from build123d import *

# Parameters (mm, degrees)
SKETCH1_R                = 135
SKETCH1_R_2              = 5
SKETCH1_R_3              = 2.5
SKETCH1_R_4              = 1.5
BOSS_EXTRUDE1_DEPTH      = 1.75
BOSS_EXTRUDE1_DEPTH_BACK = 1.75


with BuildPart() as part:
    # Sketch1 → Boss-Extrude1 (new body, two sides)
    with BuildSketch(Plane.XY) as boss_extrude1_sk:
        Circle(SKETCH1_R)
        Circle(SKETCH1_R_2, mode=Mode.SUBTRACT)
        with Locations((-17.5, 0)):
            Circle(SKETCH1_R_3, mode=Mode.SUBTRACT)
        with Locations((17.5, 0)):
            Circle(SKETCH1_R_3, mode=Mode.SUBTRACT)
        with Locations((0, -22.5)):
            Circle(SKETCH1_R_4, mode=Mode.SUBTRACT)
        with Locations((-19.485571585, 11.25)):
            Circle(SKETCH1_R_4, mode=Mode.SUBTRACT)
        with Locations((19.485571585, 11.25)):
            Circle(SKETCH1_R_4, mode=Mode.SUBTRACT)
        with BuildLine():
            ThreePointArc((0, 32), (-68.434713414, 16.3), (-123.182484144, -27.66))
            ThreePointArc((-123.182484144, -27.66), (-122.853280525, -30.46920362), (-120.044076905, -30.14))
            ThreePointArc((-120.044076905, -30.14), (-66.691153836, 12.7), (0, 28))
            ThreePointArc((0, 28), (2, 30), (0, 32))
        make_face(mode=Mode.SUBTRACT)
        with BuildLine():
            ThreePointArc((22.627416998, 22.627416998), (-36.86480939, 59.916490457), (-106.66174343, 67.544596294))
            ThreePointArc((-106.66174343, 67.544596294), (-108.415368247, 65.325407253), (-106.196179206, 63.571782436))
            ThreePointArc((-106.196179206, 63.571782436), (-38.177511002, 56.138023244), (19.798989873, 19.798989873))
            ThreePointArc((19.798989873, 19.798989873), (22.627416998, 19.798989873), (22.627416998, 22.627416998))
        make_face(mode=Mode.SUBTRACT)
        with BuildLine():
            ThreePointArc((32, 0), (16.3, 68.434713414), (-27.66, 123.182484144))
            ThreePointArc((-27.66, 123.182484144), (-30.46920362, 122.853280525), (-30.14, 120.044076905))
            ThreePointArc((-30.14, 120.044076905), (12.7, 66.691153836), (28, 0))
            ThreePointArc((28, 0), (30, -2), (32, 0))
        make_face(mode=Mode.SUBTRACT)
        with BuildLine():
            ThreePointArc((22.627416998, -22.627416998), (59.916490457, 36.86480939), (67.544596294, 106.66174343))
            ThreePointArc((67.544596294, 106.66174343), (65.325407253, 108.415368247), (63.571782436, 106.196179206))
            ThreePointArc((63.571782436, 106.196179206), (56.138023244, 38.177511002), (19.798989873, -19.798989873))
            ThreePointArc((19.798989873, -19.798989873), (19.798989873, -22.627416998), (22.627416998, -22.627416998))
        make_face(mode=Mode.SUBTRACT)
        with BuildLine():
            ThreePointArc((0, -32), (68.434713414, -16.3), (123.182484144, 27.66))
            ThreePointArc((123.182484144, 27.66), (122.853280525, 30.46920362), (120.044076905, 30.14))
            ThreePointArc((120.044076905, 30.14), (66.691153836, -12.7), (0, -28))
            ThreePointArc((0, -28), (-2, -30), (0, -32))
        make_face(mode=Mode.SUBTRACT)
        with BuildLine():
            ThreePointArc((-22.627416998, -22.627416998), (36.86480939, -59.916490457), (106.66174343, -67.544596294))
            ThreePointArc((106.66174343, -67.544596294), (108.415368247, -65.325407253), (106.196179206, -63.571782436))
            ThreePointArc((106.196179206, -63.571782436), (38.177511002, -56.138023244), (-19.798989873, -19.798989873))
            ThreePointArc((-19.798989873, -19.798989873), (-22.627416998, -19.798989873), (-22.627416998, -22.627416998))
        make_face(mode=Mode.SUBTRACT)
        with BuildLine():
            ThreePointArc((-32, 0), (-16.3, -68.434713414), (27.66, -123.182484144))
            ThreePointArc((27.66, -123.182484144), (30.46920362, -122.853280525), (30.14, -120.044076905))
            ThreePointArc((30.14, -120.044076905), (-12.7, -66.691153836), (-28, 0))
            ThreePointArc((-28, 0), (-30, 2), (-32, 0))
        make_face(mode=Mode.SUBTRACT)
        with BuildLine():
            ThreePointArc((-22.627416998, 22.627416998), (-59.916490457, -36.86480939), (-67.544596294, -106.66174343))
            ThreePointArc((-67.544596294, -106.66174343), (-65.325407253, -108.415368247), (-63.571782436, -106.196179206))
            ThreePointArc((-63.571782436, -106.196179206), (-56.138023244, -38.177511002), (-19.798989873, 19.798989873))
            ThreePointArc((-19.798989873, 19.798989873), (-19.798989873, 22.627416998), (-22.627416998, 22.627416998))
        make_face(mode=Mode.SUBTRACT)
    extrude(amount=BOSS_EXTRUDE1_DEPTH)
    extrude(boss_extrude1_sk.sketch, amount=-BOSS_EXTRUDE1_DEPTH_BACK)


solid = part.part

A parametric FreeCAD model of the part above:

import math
import FreeCAD as App
import Part
import Sketcher
Q = App.Units.Quantity

doc = App.newDocument("Part")
body = doc.addObject("PartDesign::Body", "Body")

# Sketch on XY plane
sketch1 = doc.addObject("Sketcher::SketchObject", "Sketch")
body.addObject(sketch1)
sketch1.AttachmentSupport = (doc.XY_Plane, [""])
sketch1.MapMode = "FlatFace"
sketch1.addGeometry([
    Part.Circle(App.Vector(0, 0, 0), App.Vector(0, 0, 1), 135),  # 0
    Part.ArcOfCircle(Part.Circle(App.Vector(88.4, -88.4, 0), App.Vector(0, 0, 1), 157), math.radians(135), math.radians(187)),  # 1
    Part.ArcOfCircle(Part.Circle(App.Vector(-21.2, 21.2, 0), App.Vector(0, 0, 1), 2), math.radians(-45), math.radians(135)),  # 2
    Part.ArcOfCircle(Part.Circle(App.Vector(88.4, -88.4, 0), App.Vector(0, 0, 1), 153), math.radians(135), math.radians(187)),  # 3
    Part.ArcOfCircle(Part.Circle(App.Vector(-65.6, -106.4, 0), App.Vector(0, 0, 1), 2), math.radians(-173), math.radians(7)),  # 4
    Part.ArcOfCircle(Part.Circle(App.Vector(125, 0, 0), App.Vector(0, 0, 1), 157), math.radians(180), math.radians(232)),  # 5
    Part.ArcOfCircle(Part.Circle(App.Vector(-30, 0, 0), App.Vector(0, 0, 1), 2), math.radians(0), math.radians(180)),  # 6
    Part.ArcOfCircle(Part.Circle(App.Vector(125, 0, 0), App.Vector(0, 0, 1), 153), math.radians(180), math.radians(232)),  # 7
    Part.ArcOfCircle(Part.Circle(App.Vector(28.9, -121.6, 0), App.Vector(0, 0, 1), 2), math.radians(-128), math.radians(52)),  # 8
    Part.ArcOfCircle(Part.Circle(App.Vector(88.4, 88.4, 0), App.Vector(0, 0, 1), 157), math.radians(-135), math.radians(-83)),  # 9
    Part.ArcOfCircle(Part.Circle(App.Vector(-21.2, -21.2, 0), App.Vector(0, 0, 1), 2), math.radians(45), math.radians(225)),  # 10
    Part.ArcOfCircle(Part.Circle(App.Vector(88.4, 88.4, 0), App.Vector(0, 0, 1), 153), math.radians(-135), math.radians(-83)),  # 11
    Part.ArcOfCircle(Part.Circle(App.Vector(106.4, -65.6, 0), App.Vector(0, 0, 1), 2), math.radians(-83), math.radians(97)),  # 12
    Part.Circle(App.Vector(0, -22.5, 0), App.Vector(0, 0, 1), 1.5),  # 13
    Part.ArcOfCircle(Part.Circle(App.Vector(0, 125, 0), App.Vector(0, 0, 1), 157), math.radians(-90), math.radians(-38)),  # 14
    Part.ArcOfCircle(Part.Circle(App.Vector(0, -30, 0), App.Vector(0, 0, 1), 2), math.radians(90), math.radians(270)),  # 15
    Part.ArcOfCircle(Part.Circle(App.Vector(0, 125, 0), App.Vector(0, 0, 1), 153), math.radians(-90), math.radians(-38)),  # 16
    Part.ArcOfCircle(Part.Circle(App.Vector(121.6, 28.9, 0), App.Vector(0, 0, 1), 2), math.radians(-38), math.radians(142)),  # 17
    Part.ArcOfCircle(Part.Circle(App.Vector(0, -125, 0), App.Vector(0, 0, 1), 157), math.radians(90), math.radians(142)),  # 18
    Part.ArcOfCircle(Part.Circle(App.Vector(0, 30, 0), App.Vector(0, 0, 1), 2), math.radians(-90), math.radians(90)),  # 19
    Part.ArcOfCircle(Part.Circle(App.Vector(0, -125, 0), App.Vector(0, 0, 1), 153), math.radians(90), math.radians(142)),  # 20
    Part.ArcOfCircle(Part.Circle(App.Vector(-121.6, -28.9, 0), App.Vector(0, 0, 1), 2), math.radians(142), math.radians(322)),  # 21
    Part.Circle(App.Vector(-17.5, 0, 0), App.Vector(0, 0, 1), 2.5),  # 22
    Part.Circle(App.Vector(-19.5, 11.2, 0), App.Vector(0, 0, 1), 1.5),  # 23
    Part.ArcOfCircle(Part.Circle(App.Vector(-88.4, -88.4, 0), App.Vector(0, 0, 1), 157), math.radians(45), math.radians(97)),  # 24
    Part.ArcOfCircle(Part.Circle(App.Vector(21.2, 21.2, 0), App.Vector(0, 0, 1), 2), math.radians(-135), math.radians(45)),  # 25
    Part.ArcOfCircle(Part.Circle(App.Vector(-88.4, -88.4, 0), App.Vector(0, 0, 1), 153), math.radians(45), math.radians(97)),  # 26
    Part.ArcOfCircle(Part.Circle(App.Vector(-106.4, 65.6, 0), App.Vector(0, 0, 1), 2), math.radians(97), math.radians(277)),  # 27
    Part.Circle(App.Vector(0, 0, 0), App.Vector(0, 0, 1), 5),  # 28
    Part.Circle(App.Vector(17.5, 0, 0), App.Vector(0, 0, 1), 2.5),  # 29
    Part.Circle(App.Vector(19.5, 11.2, 0), App.Vector(0, 0, 1), 1.5),  # 30
    Part.ArcOfCircle(Part.Circle(App.Vector(-125, 0, 0), App.Vector(0, 0, 1), 157), math.radians(0), math.radians(52)),  # 31
    Part.ArcOfCircle(Part.Circle(App.Vector(30, 0, 0), App.Vector(0, 0, 1), 2), math.radians(180), math.radians(360)),  # 32
    Part.ArcOfCircle(Part.Circle(App.Vector(-125, 0, 0), App.Vector(0, 0, 1), 153), math.radians(0), math.radians(52)),  # 33
    Part.ArcOfCircle(Part.Circle(App.Vector(-28.9, 121.6, 0), App.Vector(0, 0, 1), 2), math.radians(52), math.radians(232)),  # 34
    Part.ArcOfCircle(Part.Circle(App.Vector(-88.4, 88.4, 0), App.Vector(0, 0, 1), 157), math.radians(-45), math.radians(7)),  # 35
    Part.ArcOfCircle(Part.Circle(App.Vector(21.2, -21.2, 0), App.Vector(0, 0, 1), 2), math.radians(135), math.radians(315)),  # 36
    Part.ArcOfCircle(Part.Circle(App.Vector(-88.4, 88.4, 0), App.Vector(0, 0, 1), 153), math.radians(-45), math.radians(7)),  # 37
    Part.ArcOfCircle(Part.Circle(App.Vector(65.6, 106.4, 0), App.Vector(0, 0, 1), 2), math.radians(7), math.radians(187)),  # 38
], False)
sketch1.addConstraint([
    Sketcher.Constraint("Tangent", 1, 1, 2, 2),
    Sketcher.Constraint("Tangent", 2, 1, 3, 1),
    Sketcher.Constraint("Tangent", 3, 2, 4, 2),
    Sketcher.Constraint("Tangent", 4, 1, 1, 2),
    Sketcher.Constraint("Tangent", 5, 1, 6, 2),
    Sketcher.Constraint("Tangent", 6, 1, 7, 1),
    Sketcher.Constraint("Tangent", 7, 2, 8, 2),
    Sketcher.Constraint("Tangent", 8, 1, 5, 2),
    Sketcher.Constraint("Tangent", 9, 1, 10, 2),
    Sketcher.Constraint("Tangent", 10, 1, 11, 1),
    Sketcher.Constraint("Tangent", 11, 2, 12, 2),
    Sketcher.Constraint("Tangent", 12, 1, 9, 2),
    Sketcher.Constraint("Tangent", 14, 1, 15, 2),
    Sketcher.Constraint("Tangent", 15, 1, 16, 1),
    Sketcher.Constraint("Tangent", 16, 2, 17, 2),
    Sketcher.Constraint("Tangent", 17, 1, 14, 2),
    Sketcher.Constraint("Tangent", 18, 1, 19, 2),
    Sketcher.Constraint("Tangent", 19, 1, 20, 1),
    Sketcher.Constraint("Tangent", 20, 2, 21, 2),
    Sketcher.Constraint("Tangent", 21, 1, 18, 2),
    Sketcher.Constraint("Tangent", 24, 1, 25, 2),
    Sketcher.Constraint("Tangent", 25, 1, 26, 1),
    Sketcher.Constraint("Tangent", 26, 2, 27, 2),
    Sketcher.Constraint("Tangent", 27, 1, 24, 2),
    Sketcher.Constraint("Tangent", 31, 1, 32, 2),
    Sketcher.Constraint("Tangent", 32, 1, 33, 1),
    Sketcher.Constraint("Tangent", 33, 2, 34, 2),
    Sketcher.Constraint("Tangent", 34, 1, 31, 2),
    Sketcher.Constraint("Tangent", 35, 1, 36, 2),
    Sketcher.Constraint("Tangent", 36, 1, 37, 1),
    Sketcher.Constraint("Tangent", 37, 2, 38, 2),
    Sketcher.Constraint("Tangent", 38, 1, 35, 2),
    Sketcher.Constraint("Coincident", 0, 3, -1, 1),
    Sketcher.Constraint("Coincident", 28, 3, -1, 1),
    Sketcher.Constraint("Coincident", 3, 3, 1, 3),
    Sketcher.Constraint("Coincident", 7, 3, 5, 3),
    Sketcher.Constraint("Coincident", 11, 3, 9, 3),
    Sketcher.Constraint("Coincident", 16, 3, 14, 3),
    Sketcher.Constraint("Coincident", 20, 3, 18, 3),
    Sketcher.Constraint("Coincident", 26, 3, 24, 3),
    Sketcher.Constraint("Coincident", 33, 3, 31, 3),
    Sketcher.Constraint("Coincident", 37, 3, 35, 3),
    Sketcher.Constraint("Equal", 1, 5),
    Sketcher.Constraint("Equal", 4, 6),
    Sketcher.Constraint("Equal", 5, 9),
    Sketcher.Constraint("Equal", 8, 10),
    Sketcher.Constraint("Equal", 9, 14),
    Sketcher.Constraint("Equal", 12, 15),
    Sketcher.Constraint("Equal", 14, 18),
    Sketcher.Constraint("Equal", 17, 19),
    Sketcher.Constraint("Equal", 13, 23),
    Sketcher.Constraint("Equal", 18, 24),
    Sketcher.Constraint("Equal", 21, 25),
    Sketcher.Constraint("Equal", 22, 29),
    Sketcher.Constraint("Equal", 23, 30),
    Sketcher.Constraint("Equal", 24, 31),
    Sketcher.Constraint("Equal", 27, 32),
    Sketcher.Constraint("Equal", 31, 35),
    Sketcher.Constraint("Equal", 34, 36),
    Sketcher.Constraint("Symmetric", 14, 3, 18, 3, -1, 1),
    Sketcher.Constraint("Symmetric", 9, 3, 24, 3, -1, 1),
    Sketcher.Constraint("Symmetric", 22, 3, 29, 3, -1, 1),
    Sketcher.Constraint("Symmetric", 5, 3, 31, 3, -1, 1),
    Sketcher.Constraint("Symmetric", 1, 3, 35, 3, -1, 1),
    Sketcher.Constraint("Symmetric", 1, 3, 24, 3, -2),
    Sketcher.Constraint("Symmetric", 23, 3, 30, 3, -2),
    Sketcher.Constraint("PointOnObject", 5, 3, -1),
    Sketcher.Constraint("PointOnObject", 6, 3, -1),
    Sketcher.Constraint("PointOnObject", 13, 3, -2),
    Sketcher.Constraint("PointOnObject", 14, 3, -2),
    Sketcher.Constraint("PointOnObject", 15, 3, -2),
    Sketcher.Constraint("PointOnObject", 19, 3, -2),
    Sketcher.Constraint("PointOnObject", 22, 3, -1),
    Sketcher.Constraint("PointOnObject", 32, 3, -1),
    Sketcher.Constraint("Horizontal", 2, 3, 25, 3),
    Sketcher.Constraint("Horizontal", 10, 3, 36, 3),
    Sketcher.Constraint("Vertical", 2, 3, 10, 3),
    Sketcher.Constraint("Diameter", 0, Q("270 mm")),
    Sketcher.Constraint("Diameter", 13, Q("3 mm")),
    Sketcher.Constraint("Diameter", 22, Q("5 mm")),
    Sketcher.Constraint("Diameter", 28, Q("10 mm")),
    Sketcher.Constraint("Radius", 1, Q("157 mm")),
    Sketcher.Constraint("Radius", 2, Q("2 mm")),
    Sketcher.Constraint("DistanceX", -1, 1, 5, 3, Q("125 mm")),
    Sketcher.Constraint("DistanceY", -1, 1, 14, 3, Q("125 mm")),
    Sketcher.Constraint("DistanceX", -1, 1, 8, 3, Q("28.9 mm")),
    Sketcher.Constraint("DistanceY", 13, 3, -1, 1, Q("22.5 mm")),
    Sketcher.Constraint("DistanceY", -1, 1, 17, 3, Q("28.9 mm")),
    Sketcher.Constraint("DistanceY", 21, 3, -1, 1, Q("28.9 mm")),
    Sketcher.Constraint("DistanceX", 22, 3, -1, 1, Q("17.5 mm")),
    Sketcher.Constraint("DistanceX", 34, 3, -1, 1, Q("28.9 mm")),
    Sketcher.Constraint("DistanceY", -1, 1, 23, 3, Q("11.25 mm")),
    Sketcher.Constraint("DistanceX", 4, 3, -1, 1, Q("65.558189 mm")),
    Sketcher.Constraint("DistanceY", 4, 3, -1, 1, Q("106.428961 mm")),
    Sketcher.Constraint("DistanceX", -1, 1, 12, 3, Q("106.428961 mm")),
    Sketcher.Constraint("DistanceY", 12, 3, -1, 1, Q("65.558189 mm")),
    Sketcher.Constraint("DistanceX", 23, 3, -1, 1, Q("19.485572 mm")),
    Sketcher.Constraint("DistanceX", 27, 3, -1, 1, Q("106.428961 mm")),
    Sketcher.Constraint("DistanceX", -1, 1, 38, 3, Q("65.558189 mm")),
    Sketcher.Constraint("DistanceX", 2, 1, -1, 1, Q("19.79899 mm")),
])
pad1 = doc.addObject("PartDesign::Pad", "Pad")
body.addObject(pad1)
pad1.Profile = sketch1
pad1.Type = "TwoLengths"
pad1.Length = 1.75
pad1.Length2 = 1.75

doc.recompute()
